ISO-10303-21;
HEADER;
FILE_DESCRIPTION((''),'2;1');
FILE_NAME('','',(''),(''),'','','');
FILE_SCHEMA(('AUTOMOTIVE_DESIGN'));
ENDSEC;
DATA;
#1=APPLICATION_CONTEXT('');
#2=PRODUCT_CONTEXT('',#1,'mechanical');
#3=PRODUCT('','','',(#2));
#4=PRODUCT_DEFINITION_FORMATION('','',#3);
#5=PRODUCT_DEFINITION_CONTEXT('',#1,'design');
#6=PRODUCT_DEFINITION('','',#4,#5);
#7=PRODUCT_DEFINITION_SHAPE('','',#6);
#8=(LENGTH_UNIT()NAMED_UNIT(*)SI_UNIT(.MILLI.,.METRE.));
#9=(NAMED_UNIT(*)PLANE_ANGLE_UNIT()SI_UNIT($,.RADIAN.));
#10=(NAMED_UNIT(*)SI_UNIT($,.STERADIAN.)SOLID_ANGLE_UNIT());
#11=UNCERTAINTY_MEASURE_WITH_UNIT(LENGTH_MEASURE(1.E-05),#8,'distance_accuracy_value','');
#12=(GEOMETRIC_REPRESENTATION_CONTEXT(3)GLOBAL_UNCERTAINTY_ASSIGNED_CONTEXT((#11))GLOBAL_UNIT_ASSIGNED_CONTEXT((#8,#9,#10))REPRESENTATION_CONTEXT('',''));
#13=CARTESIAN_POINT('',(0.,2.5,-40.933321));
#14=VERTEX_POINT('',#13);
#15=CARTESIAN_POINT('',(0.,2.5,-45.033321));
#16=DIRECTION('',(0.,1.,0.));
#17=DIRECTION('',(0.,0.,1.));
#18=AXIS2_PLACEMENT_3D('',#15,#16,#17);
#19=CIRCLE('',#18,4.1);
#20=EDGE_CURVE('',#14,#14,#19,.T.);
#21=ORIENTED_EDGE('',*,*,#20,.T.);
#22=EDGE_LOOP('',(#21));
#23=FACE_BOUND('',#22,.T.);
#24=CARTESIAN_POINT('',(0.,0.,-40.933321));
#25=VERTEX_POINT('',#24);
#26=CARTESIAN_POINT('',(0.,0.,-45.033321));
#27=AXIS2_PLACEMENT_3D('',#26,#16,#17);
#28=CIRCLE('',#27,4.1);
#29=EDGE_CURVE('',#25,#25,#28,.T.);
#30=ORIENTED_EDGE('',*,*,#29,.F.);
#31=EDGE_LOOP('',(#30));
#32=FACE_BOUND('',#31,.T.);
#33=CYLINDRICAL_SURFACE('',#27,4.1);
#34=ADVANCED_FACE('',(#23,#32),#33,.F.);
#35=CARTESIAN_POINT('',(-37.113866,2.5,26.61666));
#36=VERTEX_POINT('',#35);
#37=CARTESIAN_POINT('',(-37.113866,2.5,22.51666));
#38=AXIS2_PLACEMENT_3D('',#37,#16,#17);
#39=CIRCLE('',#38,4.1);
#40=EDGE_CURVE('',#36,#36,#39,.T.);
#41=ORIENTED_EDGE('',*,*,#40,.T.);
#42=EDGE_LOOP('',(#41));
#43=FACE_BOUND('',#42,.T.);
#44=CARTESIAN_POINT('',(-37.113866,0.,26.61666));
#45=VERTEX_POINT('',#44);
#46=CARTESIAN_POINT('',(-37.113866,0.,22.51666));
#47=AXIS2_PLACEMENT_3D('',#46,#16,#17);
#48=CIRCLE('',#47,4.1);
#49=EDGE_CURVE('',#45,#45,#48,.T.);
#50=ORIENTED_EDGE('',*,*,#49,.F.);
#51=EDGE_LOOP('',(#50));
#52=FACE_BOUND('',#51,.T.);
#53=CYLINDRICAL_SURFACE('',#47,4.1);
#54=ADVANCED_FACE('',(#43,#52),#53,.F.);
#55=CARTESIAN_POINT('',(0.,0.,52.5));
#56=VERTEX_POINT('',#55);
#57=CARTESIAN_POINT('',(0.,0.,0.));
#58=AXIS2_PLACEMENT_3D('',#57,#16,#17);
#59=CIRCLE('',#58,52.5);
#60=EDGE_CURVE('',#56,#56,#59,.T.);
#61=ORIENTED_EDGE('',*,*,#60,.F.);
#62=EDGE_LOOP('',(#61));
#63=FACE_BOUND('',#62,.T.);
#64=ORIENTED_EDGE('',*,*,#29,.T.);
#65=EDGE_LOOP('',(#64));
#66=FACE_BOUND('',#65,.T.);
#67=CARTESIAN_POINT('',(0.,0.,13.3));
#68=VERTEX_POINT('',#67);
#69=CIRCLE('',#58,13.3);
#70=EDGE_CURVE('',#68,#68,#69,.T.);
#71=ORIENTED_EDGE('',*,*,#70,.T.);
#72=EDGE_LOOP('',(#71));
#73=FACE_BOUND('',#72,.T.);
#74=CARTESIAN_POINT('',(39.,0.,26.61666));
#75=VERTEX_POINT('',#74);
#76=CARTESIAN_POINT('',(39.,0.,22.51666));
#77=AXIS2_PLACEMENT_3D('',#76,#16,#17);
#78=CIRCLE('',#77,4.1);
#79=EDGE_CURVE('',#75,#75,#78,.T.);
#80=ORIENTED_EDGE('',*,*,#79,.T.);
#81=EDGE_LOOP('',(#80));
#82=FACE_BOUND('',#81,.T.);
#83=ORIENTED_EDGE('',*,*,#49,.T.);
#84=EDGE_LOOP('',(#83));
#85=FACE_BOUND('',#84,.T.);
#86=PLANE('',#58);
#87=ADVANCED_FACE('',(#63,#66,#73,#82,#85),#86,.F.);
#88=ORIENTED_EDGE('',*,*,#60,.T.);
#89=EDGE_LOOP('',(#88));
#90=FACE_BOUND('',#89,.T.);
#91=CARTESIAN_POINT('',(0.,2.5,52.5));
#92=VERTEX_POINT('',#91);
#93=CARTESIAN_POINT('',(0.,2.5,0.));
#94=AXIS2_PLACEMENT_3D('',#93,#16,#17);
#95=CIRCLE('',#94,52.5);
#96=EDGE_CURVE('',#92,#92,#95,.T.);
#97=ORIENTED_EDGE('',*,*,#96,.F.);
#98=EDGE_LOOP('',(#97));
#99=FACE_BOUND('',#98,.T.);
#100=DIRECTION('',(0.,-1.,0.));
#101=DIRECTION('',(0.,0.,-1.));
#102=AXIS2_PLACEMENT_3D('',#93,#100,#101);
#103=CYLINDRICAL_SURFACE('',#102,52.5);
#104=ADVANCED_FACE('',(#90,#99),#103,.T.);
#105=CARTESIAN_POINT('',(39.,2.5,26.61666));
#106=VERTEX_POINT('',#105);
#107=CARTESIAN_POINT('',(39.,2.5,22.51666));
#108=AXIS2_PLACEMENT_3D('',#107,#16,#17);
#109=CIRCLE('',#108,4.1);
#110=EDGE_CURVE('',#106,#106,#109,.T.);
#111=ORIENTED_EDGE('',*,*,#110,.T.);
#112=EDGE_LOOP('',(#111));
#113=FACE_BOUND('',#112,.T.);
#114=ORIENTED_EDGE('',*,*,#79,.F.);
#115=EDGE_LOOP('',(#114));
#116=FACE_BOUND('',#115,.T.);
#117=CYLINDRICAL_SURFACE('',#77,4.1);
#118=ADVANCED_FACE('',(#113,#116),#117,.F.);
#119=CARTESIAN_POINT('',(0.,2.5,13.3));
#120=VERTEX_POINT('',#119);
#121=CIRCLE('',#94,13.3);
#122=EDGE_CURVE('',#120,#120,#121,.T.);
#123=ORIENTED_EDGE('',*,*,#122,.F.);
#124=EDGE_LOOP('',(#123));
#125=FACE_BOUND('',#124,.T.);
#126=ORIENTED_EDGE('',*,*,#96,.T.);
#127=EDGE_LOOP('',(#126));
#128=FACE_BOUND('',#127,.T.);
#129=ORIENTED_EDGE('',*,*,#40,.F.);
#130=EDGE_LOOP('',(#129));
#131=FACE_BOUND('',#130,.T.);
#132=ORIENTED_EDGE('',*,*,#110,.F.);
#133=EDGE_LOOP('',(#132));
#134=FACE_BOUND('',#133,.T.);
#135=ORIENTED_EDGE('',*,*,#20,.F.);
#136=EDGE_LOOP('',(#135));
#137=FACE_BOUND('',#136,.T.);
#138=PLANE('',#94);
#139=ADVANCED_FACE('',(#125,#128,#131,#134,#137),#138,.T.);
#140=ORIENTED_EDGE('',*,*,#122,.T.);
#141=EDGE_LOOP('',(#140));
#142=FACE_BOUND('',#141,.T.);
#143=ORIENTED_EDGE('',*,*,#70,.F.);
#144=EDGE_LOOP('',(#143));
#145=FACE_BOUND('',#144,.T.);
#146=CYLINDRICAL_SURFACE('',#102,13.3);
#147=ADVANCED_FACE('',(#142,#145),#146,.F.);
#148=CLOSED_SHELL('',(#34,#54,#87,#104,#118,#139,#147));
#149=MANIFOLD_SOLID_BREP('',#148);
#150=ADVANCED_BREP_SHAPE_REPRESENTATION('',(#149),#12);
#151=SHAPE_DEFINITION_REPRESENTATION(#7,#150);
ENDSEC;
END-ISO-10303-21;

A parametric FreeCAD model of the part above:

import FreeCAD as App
import Part
import Sketcher

V = App.Vector
Q = App.Units.Quantity

doc = App.newDocument("Part")
body = doc.addObject("PartDesign::Body", "Body")

# Sketch on XZ plane
sketch1 = body.newObject("Sketcher::SketchObject", "Sketch")
sketch1.AttachmentSupport = (doc.getObject("XZ_Plane"), [""])
sketch1.MapMode = "FlatFace"
sketch1.addGeometry(Part.Circle(V(0, 0, 0), V(0, 0, 1), 52.5), False)
sketch1.addGeometry(Part.Circle(V(0, 0, 0), V(0, 0, 1), 13.3), False)
sketch1.addConstraint(Sketcher.Constraint("Coincident", 0, 3, -1, 1))
sketch1.addConstraint(Sketcher.Constraint("Coincident", 1, 3, -1, 1))
sketch1.addConstraint(Sketcher.Constraint("Diameter", 0, Q("105 mm")))
sketch1.addConstraint(Sketcher.Constraint("Diameter", 1, Q("26.6 mm")))
pad1 = body.newObject("PartDesign::Pad", "Pad")
pad1.Profile = sketch1
pad1.Length = 2.5
pad1.Reversed = True

# Sketch on XZ plane
sketch2 = body.newObject("Sketcher::SketchObject", "Sketch001")
sketch2.AttachmentSupport = (doc.getObject("XZ_Plane"), [""])
sketch2.MapMode = "FlatFace"
sketch2.AttachmentOffset = App.Placement(V(0, 0, -2.5), App.Rotation())
sketch2.addGeometry(Part.Circle(V(0, -45.033321, 0), V(0, 0, 1), 4.1), False)
sketch2.addGeometry(Part.Circle(V(39, 22.51666, 0), V(0, 0, 1), 4.1), False)
sketch2.addGeometry(Part.Circle(V(-37.113866, 22.51666, 0), V(0, 0, 1), 4.1), False)
sketch2.addConstraint(Sketcher.Constraint("Equal", 0, 1))
sketch2.addConstraint(Sketcher.Constraint("Equal", 1, 2))
sketch2.addConstraint(Sketcher.Constraint("PointOnObject", 0, 3, -2))
sketch2.addConstraint(Sketcher.Constraint("Horizontal", 1, 3, 2, 3))
sketch2.addConstraint(Sketcher.Constraint("Diameter", 0, Q("8.2 mm")))
sketch2.addConstraint(Sketcher.Constraint("DistanceX", -1, 1, 1, 3, Q("39 mm")))
sketch2.addConstraint(Sketcher.Constraint("DistanceY", 0, 3, -1, 1, Q("45.033321 mm")))
sketch2.addConstraint(Sketcher.Constraint("DistanceY", -1, 1, 1, 3, Q("22.51666 mm")))
sketch2.addConstraint(Sketcher.Constraint("DistanceX", 2, 3, -1, 1, Q("37.113866 mm")))
pocket1 = body.newObject("PartDesign::Pocket", "Pocket")
pocket1.Profile = sketch2
pocket1.Type = "ThroughAll"
pocket1.Reversed = True

doc.recompute()
